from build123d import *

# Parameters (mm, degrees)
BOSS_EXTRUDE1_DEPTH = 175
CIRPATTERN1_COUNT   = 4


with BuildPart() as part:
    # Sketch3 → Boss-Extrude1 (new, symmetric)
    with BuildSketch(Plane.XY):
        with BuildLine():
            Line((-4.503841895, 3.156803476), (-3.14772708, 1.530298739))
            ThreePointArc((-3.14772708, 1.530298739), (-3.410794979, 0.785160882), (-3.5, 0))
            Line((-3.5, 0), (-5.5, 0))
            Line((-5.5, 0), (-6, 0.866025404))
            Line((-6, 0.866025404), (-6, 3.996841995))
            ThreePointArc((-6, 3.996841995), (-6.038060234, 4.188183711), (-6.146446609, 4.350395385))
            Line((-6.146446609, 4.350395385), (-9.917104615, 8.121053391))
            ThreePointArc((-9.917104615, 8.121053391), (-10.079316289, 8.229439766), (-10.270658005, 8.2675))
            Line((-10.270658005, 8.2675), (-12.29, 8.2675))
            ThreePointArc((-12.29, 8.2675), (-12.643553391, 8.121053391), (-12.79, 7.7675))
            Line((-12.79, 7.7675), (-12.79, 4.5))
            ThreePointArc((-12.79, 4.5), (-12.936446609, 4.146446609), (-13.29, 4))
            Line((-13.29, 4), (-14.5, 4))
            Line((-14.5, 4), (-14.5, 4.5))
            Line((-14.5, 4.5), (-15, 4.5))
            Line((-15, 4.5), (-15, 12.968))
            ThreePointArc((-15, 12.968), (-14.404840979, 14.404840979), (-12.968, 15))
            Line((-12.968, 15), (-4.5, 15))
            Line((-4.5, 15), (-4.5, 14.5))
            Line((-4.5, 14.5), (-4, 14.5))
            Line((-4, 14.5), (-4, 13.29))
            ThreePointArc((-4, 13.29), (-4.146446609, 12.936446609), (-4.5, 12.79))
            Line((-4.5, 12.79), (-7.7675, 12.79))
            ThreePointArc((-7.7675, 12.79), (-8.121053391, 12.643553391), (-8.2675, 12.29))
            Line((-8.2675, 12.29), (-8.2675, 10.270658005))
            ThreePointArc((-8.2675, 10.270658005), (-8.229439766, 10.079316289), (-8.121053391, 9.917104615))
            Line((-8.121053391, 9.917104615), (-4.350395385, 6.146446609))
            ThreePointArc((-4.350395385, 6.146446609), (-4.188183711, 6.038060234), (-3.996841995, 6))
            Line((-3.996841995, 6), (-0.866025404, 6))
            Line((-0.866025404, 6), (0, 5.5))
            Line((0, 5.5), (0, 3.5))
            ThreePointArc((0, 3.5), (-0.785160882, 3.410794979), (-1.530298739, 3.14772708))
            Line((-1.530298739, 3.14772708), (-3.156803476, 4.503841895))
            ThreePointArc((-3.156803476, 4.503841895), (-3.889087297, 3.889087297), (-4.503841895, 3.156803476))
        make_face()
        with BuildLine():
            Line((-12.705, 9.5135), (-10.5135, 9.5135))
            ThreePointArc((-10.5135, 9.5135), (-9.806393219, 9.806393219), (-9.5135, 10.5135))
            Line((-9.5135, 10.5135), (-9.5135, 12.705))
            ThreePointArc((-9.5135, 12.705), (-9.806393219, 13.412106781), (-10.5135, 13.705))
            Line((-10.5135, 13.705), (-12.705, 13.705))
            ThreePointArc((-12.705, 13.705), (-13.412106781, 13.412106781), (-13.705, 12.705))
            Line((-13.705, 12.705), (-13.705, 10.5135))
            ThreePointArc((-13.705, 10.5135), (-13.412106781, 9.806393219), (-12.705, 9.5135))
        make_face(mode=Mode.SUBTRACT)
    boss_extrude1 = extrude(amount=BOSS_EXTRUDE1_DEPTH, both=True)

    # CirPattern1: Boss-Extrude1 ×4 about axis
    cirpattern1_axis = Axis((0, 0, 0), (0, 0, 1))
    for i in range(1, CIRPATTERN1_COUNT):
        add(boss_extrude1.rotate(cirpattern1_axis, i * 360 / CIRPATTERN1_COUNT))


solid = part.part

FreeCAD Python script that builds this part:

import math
import FreeCAD as App
import Part
import Sketcher
from FreeCAD import Vector
Q = App.Units.Quantity

doc = App.newDocument("Part")
body = doc.addObject("PartDesign::Body", "Body")

# Sketch on XY plane
sketch1 = doc.addObject("Sketcher::SketchObject", "Sketch")
body.addObject(sketch1)
sketch1.AttachmentSupport = (doc.XY_Plane, [""])
sketch1.MapMode = "FlatFace"
sketch1.addGeometry([
    Part.LineSegment(Vector(-3.15, 1.53, 0), Vector(-4.5, 3.16, 0)),  # 0
    Part.ArcOfCircle(Part.Circle(Vector(0, 0, 0), Vector(0, 0, 1), 5.5), math.radians(125.03), math.radians(144.97)),  # 1
    Part.LineSegment(Vector(-3.16, 4.5, 0), Vector(-1.53, 3.15, 0)),  # 2
    Part.ArcOfCircle(Part.Circle(Vector(0, 0, 0), Vector(0, 0, 1), 3.5), math.radians(90), math.radians(116)),  # 3
    Part.LineSegment(Vector(0, 3.5, 0), Vector(0, 5.5, 0)),  # 4
    Part.LineSegment(Vector(0, 5.5, 0), Vector(-0.87, 6, 0)),  # 5
    Part.LineSegment(Vector(-0.87, 6, 0), Vector(-4, 6, 0)),  # 6
    Part.ArcOfCircle(Part.Circle(Vector(-4, 6.5, 0), Vector(0, 0, 1), 0.5), math.radians(-135), math.radians(-90)),  # 7
    Part.LineSegment(Vector(-4.35, 6.15, 0), Vector(-8.12, 9.92, 0)),  # 8
    Part.ArcOfCircle(Part.Circle(Vector(-7.77, 10.27, 0), Vector(0, 0, 1), 0.5), math.radians(-180), math.radians(-135)),  # 9
    Part.LineSegment(Vector(-8.27, 10.27, 0), Vector(-8.27, 12.29, 0)),  # 10
    Part.ArcOfCircle(Part.Circle(Vector(-7.77, 12.29, 0), Vector(0, 0, 1), 0.5), math.radians(90), math.radians(180)),  # 11
    Part.LineSegment(Vector(-7.77, 12.79, 0), Vector(-4.5, 12.79, 0)),  # 12
    Part.ArcOfCircle(Part.Circle(Vector(-4.5, 13.29, 0), Vector(0, 0, 1), 0.5), math.radians(-90), math.radians(0)),  # 13
    Part.LineSegment(Vector(-4, 13.29, 0), Vector(-4, 14.5, 0)),  # 14
    Part.LineSegment(Vector(-4, 14.5, 0), Vector(-4.5, 14.5, 0)),  # 15
    Part.LineSegment(Vector(-4.5, 14.5, 0), Vector(-4.5, 15, 0)),  # 16
    Part.LineSegment(Vector(-4.5, 15, 0), Vector(-12.97, 15, 0)),  # 17
    Part.ArcOfCircle(Part.Circle(Vector(-12.97, 12.97, 0), Vector(0, 0, 1), 2.03), math.radians(90), math.radians(180)),  # 18
    Part.LineSegment(Vector(-15, 12.97, 0), Vector(-15, 4.5, 0)),  # 19
    Part.LineSegment(Vector(-15, 4.5, 0), Vector(-14.5, 4.5, 0)),  # 20
    Part.LineSegment(Vector(-14.5, 4.5, 0), Vector(-14.5, 4, 0)),  # 21
    Part.LineSegment(Vector(-14.5, 4, 0), Vector(-13.29, 4, 0)),  # 22
    Part.ArcOfCircle(Part.Circle(Vector(-13.29, 4.5, 0), Vector(0, 0, 1), 0.5), math.radians(-90), math.radians(0)),  # 23
    Part.LineSegment(Vector(-12.79, 4.5, 0), Vector(-12.79, 7.77, 0)),  # 24
    Part.ArcOfCircle(Part.Circle(Vector(-12.29, 7.77, 0), Vector(0, 0, 1), 0.5), math.radians(90), math.radians(180)),  # 25
    Part.LineSegment(Vector(-12.29, 8.27, 0), Vector(-10.27, 8.27, 0)),  # 26
    Part.ArcOfCircle(Part.Circle(Vector(-10.27, 7.77, 0), Vector(0, 0, 1), 0.5), math.radians(45), math.radians(90)),  # 27
    Part.LineSegment(Vector(-9.92, 8.12, 0), Vector(-6.15, 4.35, 0)),  # 28
    Part.ArcOfCircle(Part.Circle(Vector(-6.5, 4, 0), Vector(0, 0, 1), 0.5), math.radians(0), math.radians(45)),  # 29
    Part.LineSegment(Vector(-6, 4, 0), Vector(-6, 0.87, 0)),  # 30
    Part.LineSegment(Vector(-6, 0.87, 0), Vector(-5.5, 0, 0)),  # 31
    Part.LineSegment(Vector(-5.5, 0, 0), Vector(-3.5, 0, 0)),  # 32
    Part.ArcOfCircle(Part.Circle(Vector(0, 0, 0), Vector(0, 0, 1), 3.5), math.radians(154), math.radians(180)),  # 33
    Part.ArcOfCircle(Part.Circle(Vector(-12.7, 10.51, 0), Vector(0, 0, 1), 1), math.radians(-180), math.radians(-90)),  # 34
    Part.LineSegment(Vector(-13.71, 10.51, 0), Vector(-13.71, 12.71, 0)),  # 35
    Part.ArcOfCircle(Part.Circle(Vector(-12.7, 12.7, 0), Vector(0, 0, 1), 1), math.radians(90), math.radians(180)),  # 36
    Part.LineSegment(Vector(-12.71, 13.71, 0), Vector(-10.51, 13.71, 0)),  # 37
    Part.ArcOfCircle(Part.Circle(Vector(-10.51, 12.7, 0), Vector(0, 0, 1), 1), math.radians(0), math.radians(90)),  # 38
    Part.LineSegment(Vector(-9.51, 12.71, 0), Vector(-9.51, 10.51, 0)),  # 39
    Part.ArcOfCircle(Part.Circle(Vector(-10.51, 10.51, 0), Vector(0, 0, 1), 1), math.radians(-90), math.radians(0)),  # 40
    Part.LineSegment(Vector(-10.51, 9.51, 0), Vector(-12.71, 9.51, 0)),  # 41
], False)
sketch1.addConstraint([
    Sketcher.Constraint("Coincident", 0, 2, 1, 2),
    Sketcher.Constraint("Coincident", 1, 1, 2, 1),
    Sketcher.Constraint("Coincident", 2, 2, 3, 2),
    Sketcher.Constraint("Coincident", 3, 1, 4, 1),
    Sketcher.Constraint("Coincident", 4, 2, 5, 1),
    Sketcher.Constraint("Coincident", 5, 2, 6, 1),
    Sketcher.Constraint("Tangent", 6, 2, 7, 2),
    Sketcher.Constraint("Tangent", 7, 1, 8, 1),
    Sketcher.Constraint("Tangent", 8, 2, 9, 2),
    Sketcher.Constraint("Tangent", 9, 1, 10, 1),
    Sketcher.Constraint("Tangent", 10, 2, 11, 2),
    Sketcher.Constraint("Tangent", 11, 1, 12, 1),
    Sketcher.Constraint("Tangent", 12, 2, 13, 1),
    Sketcher.Constraint("Tangent", 13, 2, 14, 1),
    Sketcher.Constraint("Coincident", 14, 2, 15, 1),
    Sketcher.Constraint("Coincident", 15, 2, 16, 1),
    Sketcher.Constraint("Coincident", 16, 2, 17, 1),
    Sketcher.Constraint("Tangent", 17, 2, 18, 1),
    Sketcher.Constraint("Tangent", 18, 2, 19, 1),
    Sketcher.Constraint("Coincident", 19, 2, 20, 1),
    Sketcher.Constraint("Coincident", 20, 2, 21, 1),
    Sketcher.Constraint("Coincident", 21, 2, 22, 1),
    Sketcher.Constraint("Tangent", 22, 2, 23, 1),
    Sketcher.Constraint("Tangent", 23, 2, 24, 1),
    Sketcher.Constraint("Tangent", 24, 2, 25, 2),
    Sketcher.Constraint("Tangent", 25, 1, 26, 1),
    Sketcher.Constraint("Tangent", 26, 2, 27, 2),
    Sketcher.Constraint("Tangent", 27, 1, 28, 1),
    Sketcher.Constraint("Tangent", 28, 2, 29, 2),
    Sketcher.Constraint("Tangent", 29, 1, 30, 1),
    Sketcher.Constraint("Coincident", 30, 2, 31, 1),
    Sketcher.Constraint("Coincident", 31, 2, 32, 1),
    Sketcher.Constraint("Coincident", 32, 2, 33, 2),
    Sketcher.Constraint("Coincident", 33, 1, 0, 1),
    Sketcher.Constraint("Tangent", 34, 1, 35, 1),
    Sketcher.Constraint("Tangent", 35, 2, 36, 2),
    Sketcher.Constraint("Tangent", 36, 1, 37, 1),
    Sketcher.Constraint("Tangent", 37, 2, 38, 2),
    Sketcher.Constraint("Tangent", 38, 1, 39, 1),
    Sketcher.Constraint("Tangent", 39, 2, 40, 2),
    Sketcher.Constraint("Tangent", 40, 1, 41, 1),
    Sketcher.Constraint("Tangent", 41, 2, 34, 2),
    Sketcher.Constraint("Vertical", 4),
    Sketcher.Constraint("Horizontal", 6),
    Sketcher.Constraint("Vertical", 10),
    Sketcher.Constraint("Horizontal", 12),
    Sketcher.Constraint("Vertical", 14),
    Sketcher.Constraint("Horizontal", 15),
    Sketcher.Constraint("Vertical", 16),
    Sketcher.Constraint("Horizontal", 17),
    Sketcher.Constraint("Vertical", 19),
    Sketcher.Constraint("Horizontal", 20),
    Sketcher.Constraint("Vertical", 21),
    Sketcher.Constraint("Horizontal", 22),
    Sketcher.Constraint("Vertical", 24),
    Sketcher.Constraint("Horizontal", 26),
    Sketcher.Constraint("Vertical", 30),
    Sketcher.Constraint("Horizontal", 32),
    Sketcher.Constraint("Vertical", 35),
    Sketcher.Constraint("Horizontal", 37),
    Sketcher.Constraint("Vertical", 39),
    Sketcher.Constraint("Horizontal", 41),
    Sketcher.Constraint("Coincident", 1, 3, -1, 1),
    Sketcher.Constraint("Coincident", 3, 3, -1, 1),
    Sketcher.Constraint("Coincident", 33, 3, -1, 1),
    Sketcher.Constraint("Equal", 7, 9),
    Sketcher.Constraint("Equal", 9, 11),
    Sketcher.Constraint("Equal", 11, 13),
    Sketcher.Constraint("Equal", 13, 23),
    Sketcher.Constraint("Equal", 23, 25),
    Sketcher.Constraint("Equal", 25, 27),
    Sketcher.Constraint("Equal", 27, 29),
    Sketcher.Constraint("Equal", 3, 33),
    Sketcher.Constraint("Equal", 34, 36),
    Sketcher.Constraint("Equal", 36, 38),
    Sketcher.Constraint("Equal", 38, 40),
    Sketcher.Constraint("PointOnObject", 3, 1, -2),
    Sketcher.Constraint("PointOnObject", 31, 2, -1),
    Sketcher.Constraint("Parallel", 8, 28),
    Sketcher.Constraint("Horizontal", 23, 3, 19, 2),
    Sketcher.Constraint("Vertical", 12, 2, 15, 2),
    Sketcher.Constraint("Equal", 15, 20),
    Sketcher.Constraint("Equal", 32, 4),
    Sketcher.Constraint("Equal", 26, 10),
    Sketcher.Constraint("Equal", 22, 14),
    Sketcher.Constraint("Equal", 20, 16),
    Sketcher.Constraint("Equal", 17, 19),
    Sketcher.Constraint("Equal", 12, 24),
    Sketcher.Constraint("Equal", 6, 30),
    Sketcher.Constraint("Equal", 41, 35),
    Sketcher.Constraint("Equal", 0, 2),
    Sketcher.Constraint("Equal", 8, 28),
    Sketcher.Constraint("Equal", 5, 31),
    Sketcher.Constraint("Radius", 34, Q("1 mm")),
    Sketcher.Constraint("Radius", 1, Q("5.5 mm")),
    Sketcher.Constraint("Radius", 3, Q("3.5 mm")),
    Sketcher.Constraint("Radius", 7, Q("0.5 mm")),
    Sketcher.Constraint("DistanceX", 32, 1, 32, 2, Q("2 mm")),
    Sketcher.Constraint("Angle", 5, Q("150 deg")),
    Sketcher.Constraint("Angle", 8, Q("135 deg")),
    Sketcher.Constraint("Distance", 5, Q("1 mm")),
    Sketcher.Constraint("DistanceX", 13, 2, -1, 1, Q("4 mm")),
    Sketcher.Constraint("DistanceY", -1, 1, 16, 2, Q("15 mm")),
    Sketcher.Constraint("Radius", 18, Q("2.032 mm")),
    Sketcher.Constraint("DistanceX", 22, 1, 22, 2, Q("1.21 mm")),
    Sketcher.Constraint("Angle", 0, Q("129.82 deg")),
    Sketcher.Constraint("Angle", 2, Q("-39.82 deg")),
    Sketcher.Constraint("DistanceX", 12, 1, 12, 2, Q("3.2675 mm")),
    Sketcher.Constraint("DistanceX", 37, 1, 37, 2, Q("2.1915 mm")),
    Sketcher.Constraint("DistanceX", 34, 3, -1, 1, Q("12.705 mm")),
    Sketcher.Constraint("DistanceY", -1, 1, 36, 3, Q("12.705 mm")),
    Sketcher.Constraint("DistanceX", 0, 2, 7, 3, Q("0.507 mm")),
    Sketcher.Constraint("DistanceX", 26, 1, 26, 2, Q("2.019342 mm")),
])
pad1 = doc.addObject("PartDesign::Pad", "Pad")
body.addObject(pad1)
pad1.Profile = sketch1
pad1.Length = 350
pad1.Midplane = True
doc.recompute()

polarpattern = doc.addObject("PartDesign::PolarPattern", "PolarPattern")
body.addObject(polarpattern)
polarpattern.Originals = [pad1]
polarpattern.Axis = (doc.Z_Axis, [""])
polarpattern.Angle = 360
polarpattern.Occurrences = 4
body.Tip = polarpattern

doc.recompute()
